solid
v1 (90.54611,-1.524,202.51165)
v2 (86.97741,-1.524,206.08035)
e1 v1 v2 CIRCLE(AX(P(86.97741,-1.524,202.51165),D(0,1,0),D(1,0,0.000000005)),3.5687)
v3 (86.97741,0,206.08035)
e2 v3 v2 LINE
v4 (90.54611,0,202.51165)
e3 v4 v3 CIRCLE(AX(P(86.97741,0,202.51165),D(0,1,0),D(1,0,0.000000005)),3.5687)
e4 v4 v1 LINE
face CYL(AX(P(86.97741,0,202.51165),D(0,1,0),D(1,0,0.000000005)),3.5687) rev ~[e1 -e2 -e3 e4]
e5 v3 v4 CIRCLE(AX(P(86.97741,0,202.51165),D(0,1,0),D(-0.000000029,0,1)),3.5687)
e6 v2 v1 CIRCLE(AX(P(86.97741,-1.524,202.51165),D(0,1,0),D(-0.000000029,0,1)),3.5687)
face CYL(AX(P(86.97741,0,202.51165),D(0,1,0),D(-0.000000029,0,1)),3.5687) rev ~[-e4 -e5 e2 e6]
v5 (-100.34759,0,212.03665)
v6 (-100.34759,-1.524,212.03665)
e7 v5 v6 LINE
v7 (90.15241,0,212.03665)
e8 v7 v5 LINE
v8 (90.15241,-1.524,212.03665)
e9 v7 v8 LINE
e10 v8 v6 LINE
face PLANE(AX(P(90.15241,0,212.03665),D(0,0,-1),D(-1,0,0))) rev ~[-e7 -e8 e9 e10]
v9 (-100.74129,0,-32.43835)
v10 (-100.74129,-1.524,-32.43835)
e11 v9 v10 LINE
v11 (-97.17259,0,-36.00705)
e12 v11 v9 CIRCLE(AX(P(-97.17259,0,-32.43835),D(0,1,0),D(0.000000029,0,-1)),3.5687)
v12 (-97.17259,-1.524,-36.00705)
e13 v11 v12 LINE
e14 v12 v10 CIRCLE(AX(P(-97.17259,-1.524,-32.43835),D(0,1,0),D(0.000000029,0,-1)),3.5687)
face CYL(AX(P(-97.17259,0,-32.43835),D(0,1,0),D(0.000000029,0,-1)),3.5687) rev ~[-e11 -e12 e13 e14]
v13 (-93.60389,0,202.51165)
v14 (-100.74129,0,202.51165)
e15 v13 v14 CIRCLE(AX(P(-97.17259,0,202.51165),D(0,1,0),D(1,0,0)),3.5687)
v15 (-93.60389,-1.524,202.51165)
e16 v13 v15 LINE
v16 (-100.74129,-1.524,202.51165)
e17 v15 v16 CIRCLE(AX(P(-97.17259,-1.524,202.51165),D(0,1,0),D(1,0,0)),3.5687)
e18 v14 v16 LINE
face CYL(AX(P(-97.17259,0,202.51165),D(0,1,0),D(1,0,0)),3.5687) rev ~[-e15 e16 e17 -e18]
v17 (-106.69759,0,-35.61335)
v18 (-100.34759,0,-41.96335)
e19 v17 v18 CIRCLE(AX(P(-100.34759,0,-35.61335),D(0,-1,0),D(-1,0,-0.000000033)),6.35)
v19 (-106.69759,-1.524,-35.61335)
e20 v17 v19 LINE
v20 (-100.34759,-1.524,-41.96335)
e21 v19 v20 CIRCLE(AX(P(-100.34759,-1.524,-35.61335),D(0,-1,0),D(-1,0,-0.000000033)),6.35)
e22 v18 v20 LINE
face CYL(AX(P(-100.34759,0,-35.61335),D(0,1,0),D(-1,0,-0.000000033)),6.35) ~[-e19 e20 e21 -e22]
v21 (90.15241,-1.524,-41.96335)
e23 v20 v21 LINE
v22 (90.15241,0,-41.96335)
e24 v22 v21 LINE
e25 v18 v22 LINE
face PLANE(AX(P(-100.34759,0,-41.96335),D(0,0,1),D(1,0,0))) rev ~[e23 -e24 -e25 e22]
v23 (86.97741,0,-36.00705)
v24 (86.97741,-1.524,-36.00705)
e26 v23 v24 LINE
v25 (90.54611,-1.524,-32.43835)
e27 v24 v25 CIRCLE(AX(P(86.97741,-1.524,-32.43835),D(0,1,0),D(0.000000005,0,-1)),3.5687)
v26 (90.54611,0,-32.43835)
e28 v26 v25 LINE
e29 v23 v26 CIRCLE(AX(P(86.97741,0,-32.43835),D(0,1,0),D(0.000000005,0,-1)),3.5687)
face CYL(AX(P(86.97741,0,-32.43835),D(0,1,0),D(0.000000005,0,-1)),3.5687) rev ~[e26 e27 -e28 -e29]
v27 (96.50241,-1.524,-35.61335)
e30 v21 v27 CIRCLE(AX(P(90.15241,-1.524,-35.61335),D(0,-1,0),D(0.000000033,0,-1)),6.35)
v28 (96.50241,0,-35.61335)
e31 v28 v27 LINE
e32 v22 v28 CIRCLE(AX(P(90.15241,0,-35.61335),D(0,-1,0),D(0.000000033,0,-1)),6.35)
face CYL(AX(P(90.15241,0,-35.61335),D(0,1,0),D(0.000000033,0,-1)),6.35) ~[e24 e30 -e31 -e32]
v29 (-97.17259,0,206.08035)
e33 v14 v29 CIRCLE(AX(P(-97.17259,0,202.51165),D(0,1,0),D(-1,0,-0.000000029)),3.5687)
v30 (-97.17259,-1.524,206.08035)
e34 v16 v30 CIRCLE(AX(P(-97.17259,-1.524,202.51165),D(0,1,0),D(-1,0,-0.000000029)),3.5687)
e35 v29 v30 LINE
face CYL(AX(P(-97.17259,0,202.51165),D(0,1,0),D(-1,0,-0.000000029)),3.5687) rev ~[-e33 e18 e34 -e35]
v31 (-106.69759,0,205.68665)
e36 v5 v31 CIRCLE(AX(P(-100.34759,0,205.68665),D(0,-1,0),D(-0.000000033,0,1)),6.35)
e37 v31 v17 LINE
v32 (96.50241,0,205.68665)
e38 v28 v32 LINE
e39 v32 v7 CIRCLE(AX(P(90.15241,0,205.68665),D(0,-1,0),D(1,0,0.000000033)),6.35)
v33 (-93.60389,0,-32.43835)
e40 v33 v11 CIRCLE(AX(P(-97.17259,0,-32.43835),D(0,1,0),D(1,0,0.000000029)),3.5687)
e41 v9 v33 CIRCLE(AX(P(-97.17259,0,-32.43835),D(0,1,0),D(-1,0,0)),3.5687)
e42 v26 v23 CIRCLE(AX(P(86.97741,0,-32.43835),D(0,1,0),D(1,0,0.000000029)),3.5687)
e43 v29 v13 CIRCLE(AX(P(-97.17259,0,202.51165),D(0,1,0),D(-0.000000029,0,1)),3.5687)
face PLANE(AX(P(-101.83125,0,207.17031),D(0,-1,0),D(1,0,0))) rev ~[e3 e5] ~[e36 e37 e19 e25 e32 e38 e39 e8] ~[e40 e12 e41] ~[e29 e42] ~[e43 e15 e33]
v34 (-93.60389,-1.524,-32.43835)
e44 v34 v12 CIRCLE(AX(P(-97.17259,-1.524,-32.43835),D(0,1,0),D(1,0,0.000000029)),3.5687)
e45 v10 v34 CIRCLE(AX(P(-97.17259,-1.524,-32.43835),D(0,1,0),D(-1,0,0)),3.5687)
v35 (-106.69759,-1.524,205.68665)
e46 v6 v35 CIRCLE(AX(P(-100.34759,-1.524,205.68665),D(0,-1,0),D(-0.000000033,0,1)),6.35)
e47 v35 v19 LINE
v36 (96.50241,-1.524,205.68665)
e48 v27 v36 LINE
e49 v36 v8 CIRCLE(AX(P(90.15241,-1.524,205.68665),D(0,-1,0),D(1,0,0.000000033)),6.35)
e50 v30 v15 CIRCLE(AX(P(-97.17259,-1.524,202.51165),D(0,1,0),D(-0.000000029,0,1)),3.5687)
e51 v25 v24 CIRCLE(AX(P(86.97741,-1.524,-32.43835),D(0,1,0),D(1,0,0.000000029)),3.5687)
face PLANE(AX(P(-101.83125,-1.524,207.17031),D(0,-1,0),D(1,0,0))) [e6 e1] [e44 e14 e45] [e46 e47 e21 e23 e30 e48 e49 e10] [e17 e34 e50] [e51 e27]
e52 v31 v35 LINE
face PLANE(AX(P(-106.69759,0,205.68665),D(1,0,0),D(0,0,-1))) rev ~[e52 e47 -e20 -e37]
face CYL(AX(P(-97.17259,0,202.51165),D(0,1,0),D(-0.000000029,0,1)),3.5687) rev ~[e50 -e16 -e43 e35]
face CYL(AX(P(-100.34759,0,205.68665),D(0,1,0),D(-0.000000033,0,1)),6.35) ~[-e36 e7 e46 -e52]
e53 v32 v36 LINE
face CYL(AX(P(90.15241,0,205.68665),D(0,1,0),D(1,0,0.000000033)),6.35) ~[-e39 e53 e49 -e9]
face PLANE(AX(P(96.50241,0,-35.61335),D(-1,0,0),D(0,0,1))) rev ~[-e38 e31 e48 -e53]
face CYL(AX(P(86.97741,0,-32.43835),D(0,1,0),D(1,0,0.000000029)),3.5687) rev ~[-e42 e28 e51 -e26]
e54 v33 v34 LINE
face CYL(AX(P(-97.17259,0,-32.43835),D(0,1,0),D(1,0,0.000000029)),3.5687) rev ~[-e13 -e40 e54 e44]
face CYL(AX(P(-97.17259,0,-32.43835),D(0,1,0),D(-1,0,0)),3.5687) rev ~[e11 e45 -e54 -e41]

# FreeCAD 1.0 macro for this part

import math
import FreeCAD as App
import Part
import Sketcher

V = App.Vector
Q = App.Units.Quantity

doc = App.newDocument("Part")
body = doc.addObject("PartDesign::Body", "Body")

sketch1 = doc.addObject("Sketcher::SketchObject", "Sketch")
body.addObject(sketch1)
sketch1.AttachmentSupport = (doc.XZ_Plane, [""])
sketch1.MapMode = "FlatFace"
sketch1.addGeometry([
    Part.ArcOfCircle(Part.Circle(V(-100.3, 205.7, 0), V(0, 0, 1), 6.4), math.radians(90), math.radians(180)),
    Part.LineSegment(V(-106.7, 205.7, 0), V(-106.7, -35.6, 0)),
    Part.ArcOfCircle(Part.Circle(V(-100.3, -35.6, 0), V(0, 0, 1), 6.4), math.radians(-180), math.radians(-90)),
    Part.LineSegment(V(-100.3, -42, 0), V(90.2, -42, 0)),
    Part.ArcOfCircle(Part.Circle(V(90.2, -35.6, 0), V(0, 0, 1), 6.4), math.radians(-90), math.radians(0)),
    Part.LineSegment(V(96.5, -35.6, 0), V(96.5, 205.7, 0)),
    Part.ArcOfCircle(Part.Circle(V(90.2, 205.7, 0), V(0, 0, 1), 6.4), math.radians(0), math.radians(90)),
    Part.LineSegment(V(90.2, 212, 0), V(-100.3, 212, 0)),
    Part.ArcOfCircle(Part.Circle(V(87, -32.4, 0), V(0, 0, 1), 3.6), math.radians(0), math.radians(270)),
    Part.ArcOfCircle(Part.Circle(V(87, -32.4, 0), V(0, 0, 1), 3.6), math.radians(-90), math.radians(0)),
    Part.ArcOfCircle(Part.Circle(V(-97.2, -32.4, 0), V(0, 0, 1), 3.6), math.radians(0), math.radians(180)),
    Part.ArcOfCircle(Part.Circle(V(-97.2, -32.4, 0), V(0, 0, 1), 3.6), math.radians(-90), math.radians(0)),
    Part.ArcOfCircle(Part.Circle(V(-97.2, -32.4, 0), V(0, 0, 1), 3.6), math.radians(180), math.radians(270)),
    Part.ArcOfCircle(Part.Circle(V(87, 202.5, 0), V(0, 0, 1), 3.6), math.radians(90), math.radians(360)),
    Part.ArcOfCircle(Part.Circle(V(87, 202.5, 0), V(0, 0, 1), 3.6), math.radians(0), math.radians(90)),
    Part.ArcOfCircle(Part.Circle(V(-97.2, 202.5, 0), V(0, 0, 1), 3.6), math.radians(90), math.radians(180)),
    Part.ArcOfCircle(Part.Circle(V(-97.2, 202.5, 0), V(0, 0, 1), 3.6), math.radians(0), math.radians(90)),
    Part.ArcOfCircle(Part.Circle(V(-97.2, 202.5, 0), V(0, 0, 1), 3.6), math.radians(180), math.radians(360)),
], False)
sketch1.addConstraint([
    Sketcher.Constraint("Tangent", 0, 2, 1, 1),
    Sketcher.Constraint("Tangent", 1, 2, 2, 1),
    Sketcher.Constraint("Tangent", 2, 2, 3, 1),
    Sketcher.Constraint("Tangent", 3, 2, 4, 1),
    Sketcher.Constraint("Tangent", 4, 2, 5, 1),
    Sketcher.Constraint("Tangent", 5, 2, 6, 1),
    Sketcher.Constraint("Tangent", 6, 2, 7, 1),
    Sketcher.Constraint("Tangent", 7, 2, 0, 1),
    Sketcher.Constraint("Tangent", 8, 1, 9, 2),
    Sketcher.Constraint("Coincident", 9, 1, 8, 2),
    Sketcher.Constraint("Tangent", 10, 1, 11, 2),
    Sketcher.Constraint("Tangent", 11, 1, 12, 2),
    Sketcher.Constraint("Tangent", 12, 1, 10, 2),
    Sketcher.Constraint("Tangent", 13, 1, 14, 2),
    Sketcher.Constraint("Coincident", 14, 1, 13, 2),
    Sketcher.Constraint("Tangent", 15, 1, 16, 2),
    Sketcher.Constraint("Tangent", 16, 1, 17, 2),
    Sketcher.Constraint("Tangent", 17, 1, 15, 2),
    Sketcher.Constraint("Vertical", 1),
    Sketcher.Constraint("Horizontal", 3),
    Sketcher.Constraint("Vertical", 5),
    Sketcher.Constraint("Horizontal", 7),
    Sketcher.Constraint("Equal", 0, 2),
    Sketcher.Constraint("Equal", 2, 4),
    Sketcher.Constraint("Equal", 4, 6),
    Sketcher.Constraint("Equal", 9, 10),
    Sketcher.Constraint("Equal", 12, 13),
    Sketcher.Constraint("Equal", 14, 15),
    Sketcher.Constraint("Horizontal", 9, 3, 10, 3),
    Sketcher.Constraint("Horizontal", 14, 3, 15, 3),
    Sketcher.Constraint("Horizontal", 12, 3, 8, 1),
    Sketcher.Constraint("Horizontal", 8, 1, 10, 1),
    Sketcher.Constraint("Horizontal", 10, 1, 12, 1),
    Sketcher.Constraint("Horizontal", 17, 3, 14, 1),
    Sketcher.Constraint("Horizontal", 14, 1, 16, 1),
    Sketcher.Constraint("Horizontal", 16, 1, 17, 1),
    Sketcher.Constraint("Vertical", 9, 3, 13, 3),
    Sketcher.Constraint("Vertical", 12, 3, 15, 3),
    Sketcher.Constraint("Vertical", 14, 3, 9, 1),
    Sketcher.Constraint("Vertical", 17, 3, 11, 1),
    Sketcher.Constraint("Vertical", 9, 1, 13, 1),
    Sketcher.Constraint("Vertical", 11, 1, 15, 1),
    Sketcher.Constraint("Radius", 0, Q("0.25 in")),
    Sketcher.Constraint("DistanceX", 3, 1, 3, 2, Q("7.5 in")),
    Sketcher.Constraint("DistanceY", 1, 2, 1, 1, Q("9.5 in")),
    Sketcher.Constraint("Radius", 8, Q("0.1405 in")),
    Sketcher.Constraint("DistanceX", 10, 3, 8, 3, Q("7.25 in")),
    Sketcher.Constraint("DistanceY", 8, 3, 13, 3, Q("9.25 in")),
    Sketcher.Constraint("DistanceX", 8, 3, 4, 3, Q("0.125 in")),
    Sketcher.Constraint("DistanceY", 4, 3, 8, 3, Q("0.125 in")),
    Sketcher.Constraint("DistanceX", 0, 3, -1, 1, 100.34759),
    Sketcher.Constraint("DistanceY", -1, 1, 0, 3, 205.68665),
])
pad1 = doc.addObject("PartDesign::Pad", "Pad")
body.addObject(pad1)
pad1.Profile = sketch1
pad1.Length = Q("0.06 in")

doc.recompute()
